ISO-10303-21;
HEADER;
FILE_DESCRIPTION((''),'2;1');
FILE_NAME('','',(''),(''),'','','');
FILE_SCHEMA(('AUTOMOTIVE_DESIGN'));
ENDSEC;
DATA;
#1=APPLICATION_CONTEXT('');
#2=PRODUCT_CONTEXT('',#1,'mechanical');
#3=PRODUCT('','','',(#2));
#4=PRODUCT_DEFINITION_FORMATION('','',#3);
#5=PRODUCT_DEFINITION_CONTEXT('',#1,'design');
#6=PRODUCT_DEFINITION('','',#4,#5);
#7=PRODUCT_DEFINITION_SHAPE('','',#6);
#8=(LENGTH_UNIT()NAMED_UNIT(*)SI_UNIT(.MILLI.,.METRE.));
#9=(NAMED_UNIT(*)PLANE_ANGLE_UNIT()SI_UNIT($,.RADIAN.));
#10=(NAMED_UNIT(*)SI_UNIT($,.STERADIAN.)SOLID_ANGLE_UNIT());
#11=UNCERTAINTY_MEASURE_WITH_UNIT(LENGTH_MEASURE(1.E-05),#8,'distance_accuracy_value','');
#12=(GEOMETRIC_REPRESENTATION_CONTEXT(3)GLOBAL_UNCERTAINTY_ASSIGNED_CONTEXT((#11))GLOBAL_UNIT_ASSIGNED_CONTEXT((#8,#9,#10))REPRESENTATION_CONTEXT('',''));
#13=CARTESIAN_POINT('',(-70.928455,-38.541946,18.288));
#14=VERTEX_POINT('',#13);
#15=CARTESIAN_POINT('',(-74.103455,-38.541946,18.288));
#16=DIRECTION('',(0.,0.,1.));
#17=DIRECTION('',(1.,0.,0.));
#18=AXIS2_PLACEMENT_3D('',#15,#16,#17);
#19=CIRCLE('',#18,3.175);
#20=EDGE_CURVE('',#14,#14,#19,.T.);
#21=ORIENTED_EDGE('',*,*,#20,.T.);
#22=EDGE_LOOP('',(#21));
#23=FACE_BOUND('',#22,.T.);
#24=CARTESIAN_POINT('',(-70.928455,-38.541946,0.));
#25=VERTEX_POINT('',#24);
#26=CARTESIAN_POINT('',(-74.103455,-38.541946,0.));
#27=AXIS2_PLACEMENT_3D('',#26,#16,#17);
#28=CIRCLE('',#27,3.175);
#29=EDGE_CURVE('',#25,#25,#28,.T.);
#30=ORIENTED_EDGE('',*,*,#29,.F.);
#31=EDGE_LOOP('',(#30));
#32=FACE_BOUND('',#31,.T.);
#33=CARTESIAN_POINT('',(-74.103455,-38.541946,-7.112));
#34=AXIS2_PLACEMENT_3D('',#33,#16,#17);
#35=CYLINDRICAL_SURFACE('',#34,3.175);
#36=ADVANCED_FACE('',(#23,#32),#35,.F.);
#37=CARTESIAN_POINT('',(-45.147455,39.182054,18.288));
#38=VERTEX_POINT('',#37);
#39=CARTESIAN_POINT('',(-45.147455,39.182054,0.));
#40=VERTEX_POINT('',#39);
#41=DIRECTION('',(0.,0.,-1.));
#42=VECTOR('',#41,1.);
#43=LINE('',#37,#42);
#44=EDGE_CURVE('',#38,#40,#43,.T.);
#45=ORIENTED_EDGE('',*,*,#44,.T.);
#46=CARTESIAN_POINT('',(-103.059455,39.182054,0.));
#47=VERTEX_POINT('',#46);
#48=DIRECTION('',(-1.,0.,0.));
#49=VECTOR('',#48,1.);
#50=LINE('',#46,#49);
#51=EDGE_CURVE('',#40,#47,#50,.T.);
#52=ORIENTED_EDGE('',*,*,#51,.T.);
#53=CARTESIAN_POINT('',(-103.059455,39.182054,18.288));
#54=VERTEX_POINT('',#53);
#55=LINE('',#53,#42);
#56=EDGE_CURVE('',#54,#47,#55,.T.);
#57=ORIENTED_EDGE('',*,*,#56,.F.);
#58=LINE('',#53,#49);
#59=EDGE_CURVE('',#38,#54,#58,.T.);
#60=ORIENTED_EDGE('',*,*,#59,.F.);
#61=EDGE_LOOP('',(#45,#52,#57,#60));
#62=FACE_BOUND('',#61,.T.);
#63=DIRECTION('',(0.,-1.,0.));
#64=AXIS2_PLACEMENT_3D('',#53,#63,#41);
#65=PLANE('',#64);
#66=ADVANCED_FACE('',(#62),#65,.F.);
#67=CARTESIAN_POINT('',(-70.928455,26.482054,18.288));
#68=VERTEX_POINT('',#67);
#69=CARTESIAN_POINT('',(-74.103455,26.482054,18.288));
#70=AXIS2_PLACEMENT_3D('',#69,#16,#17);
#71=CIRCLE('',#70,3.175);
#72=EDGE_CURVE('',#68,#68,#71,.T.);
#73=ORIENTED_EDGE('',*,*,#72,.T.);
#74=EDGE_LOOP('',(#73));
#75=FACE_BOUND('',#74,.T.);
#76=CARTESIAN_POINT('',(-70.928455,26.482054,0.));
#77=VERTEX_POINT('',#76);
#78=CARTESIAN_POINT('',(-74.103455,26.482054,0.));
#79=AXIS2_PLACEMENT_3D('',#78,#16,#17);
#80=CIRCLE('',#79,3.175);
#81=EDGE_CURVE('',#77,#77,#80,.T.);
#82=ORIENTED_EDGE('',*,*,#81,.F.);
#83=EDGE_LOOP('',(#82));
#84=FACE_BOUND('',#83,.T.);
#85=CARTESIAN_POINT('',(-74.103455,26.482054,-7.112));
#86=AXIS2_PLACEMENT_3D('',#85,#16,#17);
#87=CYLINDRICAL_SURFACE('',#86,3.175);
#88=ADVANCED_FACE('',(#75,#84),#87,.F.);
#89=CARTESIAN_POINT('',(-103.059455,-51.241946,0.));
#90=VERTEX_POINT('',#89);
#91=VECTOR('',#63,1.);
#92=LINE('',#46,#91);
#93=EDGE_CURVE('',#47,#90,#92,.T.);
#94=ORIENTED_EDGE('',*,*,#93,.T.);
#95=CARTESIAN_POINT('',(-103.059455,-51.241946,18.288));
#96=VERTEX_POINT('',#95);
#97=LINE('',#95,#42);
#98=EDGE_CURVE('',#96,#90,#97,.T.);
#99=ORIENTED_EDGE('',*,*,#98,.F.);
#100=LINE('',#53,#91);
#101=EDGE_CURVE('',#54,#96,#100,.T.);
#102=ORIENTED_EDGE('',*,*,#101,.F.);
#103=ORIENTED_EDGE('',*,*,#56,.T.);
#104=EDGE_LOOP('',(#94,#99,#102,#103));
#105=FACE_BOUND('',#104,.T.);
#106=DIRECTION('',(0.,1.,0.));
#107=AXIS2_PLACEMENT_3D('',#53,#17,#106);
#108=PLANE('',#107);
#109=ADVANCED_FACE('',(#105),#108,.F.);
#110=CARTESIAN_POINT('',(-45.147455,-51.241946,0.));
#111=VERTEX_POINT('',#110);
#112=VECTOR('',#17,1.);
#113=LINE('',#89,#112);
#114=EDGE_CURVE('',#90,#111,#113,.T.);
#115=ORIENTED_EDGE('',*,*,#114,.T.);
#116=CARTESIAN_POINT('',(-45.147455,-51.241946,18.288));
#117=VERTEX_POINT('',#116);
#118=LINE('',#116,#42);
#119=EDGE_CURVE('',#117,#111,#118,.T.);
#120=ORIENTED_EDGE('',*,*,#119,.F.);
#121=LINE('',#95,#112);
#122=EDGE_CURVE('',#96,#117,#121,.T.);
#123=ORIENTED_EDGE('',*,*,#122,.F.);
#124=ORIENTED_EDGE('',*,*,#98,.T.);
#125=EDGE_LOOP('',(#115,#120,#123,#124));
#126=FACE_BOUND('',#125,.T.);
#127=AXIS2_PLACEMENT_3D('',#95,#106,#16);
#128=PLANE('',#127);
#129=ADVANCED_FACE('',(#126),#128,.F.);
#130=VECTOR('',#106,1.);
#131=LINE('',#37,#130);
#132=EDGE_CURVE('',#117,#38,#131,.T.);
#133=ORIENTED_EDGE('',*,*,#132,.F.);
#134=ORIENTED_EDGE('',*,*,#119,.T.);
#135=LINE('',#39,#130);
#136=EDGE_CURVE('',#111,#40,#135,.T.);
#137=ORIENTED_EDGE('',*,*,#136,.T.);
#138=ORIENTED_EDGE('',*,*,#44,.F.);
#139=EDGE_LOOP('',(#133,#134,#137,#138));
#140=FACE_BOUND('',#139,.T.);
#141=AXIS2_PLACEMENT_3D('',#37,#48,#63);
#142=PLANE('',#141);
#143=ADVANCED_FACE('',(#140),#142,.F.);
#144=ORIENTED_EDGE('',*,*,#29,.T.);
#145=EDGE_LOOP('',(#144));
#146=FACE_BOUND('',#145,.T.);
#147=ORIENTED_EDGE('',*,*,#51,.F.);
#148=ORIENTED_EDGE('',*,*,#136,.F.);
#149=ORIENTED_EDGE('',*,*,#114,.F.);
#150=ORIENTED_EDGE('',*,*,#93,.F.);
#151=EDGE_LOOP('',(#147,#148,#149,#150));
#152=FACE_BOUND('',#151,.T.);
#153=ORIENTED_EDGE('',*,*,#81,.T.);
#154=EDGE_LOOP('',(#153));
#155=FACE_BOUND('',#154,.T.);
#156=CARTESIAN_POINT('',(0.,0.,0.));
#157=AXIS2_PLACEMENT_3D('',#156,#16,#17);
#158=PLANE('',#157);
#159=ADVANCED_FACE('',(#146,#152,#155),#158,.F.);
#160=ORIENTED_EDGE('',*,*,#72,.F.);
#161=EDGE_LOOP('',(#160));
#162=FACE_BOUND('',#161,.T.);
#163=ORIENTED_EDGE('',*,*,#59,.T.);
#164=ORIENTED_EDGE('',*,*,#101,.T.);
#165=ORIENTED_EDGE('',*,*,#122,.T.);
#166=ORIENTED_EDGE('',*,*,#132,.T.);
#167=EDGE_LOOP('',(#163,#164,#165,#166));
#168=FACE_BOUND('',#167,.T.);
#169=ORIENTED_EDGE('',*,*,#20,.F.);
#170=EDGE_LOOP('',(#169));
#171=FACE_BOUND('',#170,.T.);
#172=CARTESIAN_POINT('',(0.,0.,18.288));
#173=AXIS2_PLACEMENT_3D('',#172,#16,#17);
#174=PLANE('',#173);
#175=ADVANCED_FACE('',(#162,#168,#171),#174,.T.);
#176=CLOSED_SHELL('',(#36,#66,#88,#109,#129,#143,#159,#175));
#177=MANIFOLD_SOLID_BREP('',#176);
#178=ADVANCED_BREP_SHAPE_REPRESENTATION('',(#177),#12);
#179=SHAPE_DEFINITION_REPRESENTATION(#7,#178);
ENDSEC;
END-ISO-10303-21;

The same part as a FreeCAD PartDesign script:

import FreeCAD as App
import Part
import Sketcher

V = App.Vector
Q = App.Units.Quantity


def add_polygon(sketch, points):
    """Adds a closed chain of lines whose ends are joined by coincident constraints."""
    first, n = sketch.GeometryCount, len(points)
    for a, b in zip(points, points[1:] + points[:1]):
        sketch.addGeometry(Part.LineSegment(App.Vector(*a, 0), App.Vector(*b, 0)), False)
    for i in range(n):
        sketch.addConstraint(Sketcher.Constraint("Coincident", first + i, 2, first + (i + 1) % n, 1))

doc = App.newDocument("Part")
params = doc.addObject("Spreadsheet::Sheet", "Params")
for row, (alias, value) in enumerate([
    ("sketch1_width", "2.28 in"),
    ("sketch1_height", "3.56 in"),
    ("pad1_length", "0.72 in"),
    ("sketch2_diameter", "0.25 in"),
    ("pocket1_length", "1 in"),
], start=1):
    params.set(f"A{row}", alias)
    params.set(f"B{row}", "=" + value)
    params.setAlias(f"B{row}", alias)

body = doc.addObject("PartDesign::Body", "Body")

# Sketch on XY plane
sketch1 = body.newObject("Sketcher::SketchObject", "Sketch")
sketch1.AttachmentSupport = (doc.getObject("XY_Plane"), [""])
sketch1.MapMode = "FlatFace"
add_polygon(sketch1, [(-103.059455, 39.182054), (-103.059455, -51.241946), (-45.147455, -51.241946), (-45.147455, 39.182054)])  # lines 0-3
sketch1.addConstraint(Sketcher.Constraint("Vertical", 0))
sketch1.addConstraint(Sketcher.Constraint("Horizontal", 1))
sketch1.addConstraint(Sketcher.Constraint("Vertical", 2))
sketch1.addConstraint(Sketcher.Constraint("Horizontal", 3))
sketch1.addConstraint(Sketcher.Constraint("DistanceX", 1, 1, 1, 2, Q("2.28 in")))
sketch1.addConstraint(Sketcher.Constraint("DistanceY", 0, 2, 0, 1, Q("3.56 in")))
sketch1.addConstraint(Sketcher.Constraint("DistanceX", 0, 2, -1, 1, Q("103.059455 mm")))
sketch1.addConstraint(Sketcher.Constraint("DistanceY", 0, 2, -1, 1, Q("51.241946 mm")))
sketch1.setExpression("Constraints[8]", "Params.sketch1_width")
sketch1.setExpression("Constraints[9]", "Params.sketch1_height")
pad1 = body.newObject("PartDesign::Pad", "Pad")
pad1.Profile = sketch1
pad1.setExpression("Length", "Params.pad1_length")

# Sketch on XY plane
sketch2 = body.newObject("Sketcher::SketchObject", "Sketch001")
sketch2.AttachmentSupport = (doc.getObject("XY_Plane"), [""])
sketch2.MapMode = "FlatFace"
sketch2.AttachmentOffset = App.Placement(V(0, 0, 0.72 * 25.4), App.Rotation())
sketch2.addGeometry(Part.Circle(V(-74.103455, 26.482054, 0), V(0, 0, 1), 3.175), False)
sketch2.addGeometry(Part.Circle(V(-74.103455, -38.541946, 0), V(0, 0, 1), 3.175), False)
sketch2.addConstraint(Sketcher.Constraint("Equal", 0, 1))
sketch2.addConstraint(Sketcher.Constraint("Vertical", 0, 3, 1, 3))
sketch2.addConstraint(Sketcher.Constraint("Diameter", 0, Q("0.25 in")))
sketch2.addConstraint(Sketcher.Constraint("DistanceY", 1, 3, 0, 3, Q("2.56 in")))
sketch2.addConstraint(Sketcher.Constraint("DistanceX", 0, 3, -1, 1, Q("74.103455 mm")))
sketch2.addConstraint(Sketcher.Constraint("DistanceY", -1, 1, 0, 3, Q("26.482054 mm")))
sketch2.setExpression("Constraints[2]", "Params.sketch2_diameter")
pocket1 = body.newObject("PartDesign::Pocket", "Pocket")
pocket1.Profile = sketch2
pocket1.setExpression("Length", "Params.pocket1_length")

doc.recompute()
